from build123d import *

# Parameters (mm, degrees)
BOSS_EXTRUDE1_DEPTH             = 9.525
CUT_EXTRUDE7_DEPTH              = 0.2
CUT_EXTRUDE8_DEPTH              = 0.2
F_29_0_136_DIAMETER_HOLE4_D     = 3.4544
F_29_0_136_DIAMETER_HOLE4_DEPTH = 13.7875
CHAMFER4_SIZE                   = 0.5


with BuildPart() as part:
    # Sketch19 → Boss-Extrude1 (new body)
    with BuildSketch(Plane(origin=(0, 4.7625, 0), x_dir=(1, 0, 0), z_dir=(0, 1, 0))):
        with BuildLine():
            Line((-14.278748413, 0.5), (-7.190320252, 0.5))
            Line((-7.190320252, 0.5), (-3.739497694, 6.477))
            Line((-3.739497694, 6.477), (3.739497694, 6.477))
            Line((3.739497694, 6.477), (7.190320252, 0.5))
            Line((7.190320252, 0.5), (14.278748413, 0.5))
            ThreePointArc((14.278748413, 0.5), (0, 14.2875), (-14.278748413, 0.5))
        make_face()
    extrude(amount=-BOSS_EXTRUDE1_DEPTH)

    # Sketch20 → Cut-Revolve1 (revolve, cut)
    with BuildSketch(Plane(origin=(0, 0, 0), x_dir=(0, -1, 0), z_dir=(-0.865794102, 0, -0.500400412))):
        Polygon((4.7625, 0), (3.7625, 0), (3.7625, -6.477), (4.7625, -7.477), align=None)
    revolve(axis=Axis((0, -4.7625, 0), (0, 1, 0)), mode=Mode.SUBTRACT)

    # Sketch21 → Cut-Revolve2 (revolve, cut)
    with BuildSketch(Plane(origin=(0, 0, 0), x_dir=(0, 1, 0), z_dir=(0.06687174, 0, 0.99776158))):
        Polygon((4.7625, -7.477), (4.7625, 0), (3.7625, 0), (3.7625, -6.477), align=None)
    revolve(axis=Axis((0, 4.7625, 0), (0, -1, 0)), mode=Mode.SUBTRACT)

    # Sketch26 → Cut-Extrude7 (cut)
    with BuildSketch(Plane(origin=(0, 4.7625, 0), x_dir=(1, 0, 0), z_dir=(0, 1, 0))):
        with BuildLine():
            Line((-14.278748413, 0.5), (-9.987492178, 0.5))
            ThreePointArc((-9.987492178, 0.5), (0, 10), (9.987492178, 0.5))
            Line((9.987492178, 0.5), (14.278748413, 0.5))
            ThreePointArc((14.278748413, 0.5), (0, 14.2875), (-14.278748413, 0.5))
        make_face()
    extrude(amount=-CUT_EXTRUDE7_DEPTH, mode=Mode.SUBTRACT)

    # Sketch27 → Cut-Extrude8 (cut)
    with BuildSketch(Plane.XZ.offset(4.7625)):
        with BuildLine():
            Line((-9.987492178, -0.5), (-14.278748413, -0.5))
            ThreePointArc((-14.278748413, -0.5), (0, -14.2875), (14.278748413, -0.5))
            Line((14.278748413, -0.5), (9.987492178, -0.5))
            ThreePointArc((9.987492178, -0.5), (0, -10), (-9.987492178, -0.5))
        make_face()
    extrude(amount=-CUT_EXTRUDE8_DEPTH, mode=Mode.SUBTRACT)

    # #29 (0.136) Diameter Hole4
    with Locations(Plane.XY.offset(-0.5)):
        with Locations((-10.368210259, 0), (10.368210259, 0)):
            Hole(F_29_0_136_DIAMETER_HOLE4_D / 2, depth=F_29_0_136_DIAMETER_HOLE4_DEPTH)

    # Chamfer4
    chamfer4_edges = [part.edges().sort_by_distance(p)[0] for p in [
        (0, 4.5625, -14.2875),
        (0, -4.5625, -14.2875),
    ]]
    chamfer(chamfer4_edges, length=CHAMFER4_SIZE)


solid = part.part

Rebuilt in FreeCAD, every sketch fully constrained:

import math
import FreeCAD as App
import Part
import Sketcher
Q = App.Units.Quantity


def edges_at(feature, points):
    """Names of the edges that pass closest to the given points."""
    edges = feature.Shape.Edges
    near = lambda p: min(range(len(edges)), key=lambda i: edges[i].distToShape(Part.Vertex(*p))[0])
    return sorted({f"Edge{near(p) + 1}" for p in points})


def add_polygon(sketch, points):
    """Adds a closed chain of lines whose ends are joined by coincident constraints."""
    first, n = sketch.GeometryCount, len(points)
    for a, b in zip(points, points[1:] + points[:1]):
        sketch.addGeometry(Part.LineSegment(App.Vector(*a, 0), App.Vector(*b, 0)), False)
    for i in range(n):
        sketch.addConstraint(Sketcher.Constraint("Coincident", first + i, 2, first + (i + 1) % n, 1))

doc = App.newDocument("Part")
body = doc.addObject("PartDesign::Body", "Body")

sketch1 = doc.addObject("Sketcher::SketchObject", "Sketch")
body.addObject(sketch1)
sketch1.AttachmentSupport = (doc.XZ_Plane, [""])
sketch1.MapMode = "FlatFace"
sketch1.AttachmentOffset = App.Placement(App.Vector(0, 0, -4.7625), App.Rotation())
sketch1.addGeometry(Part.LineSegment(App.Vector(-14, 0, 0), App.Vector(-7, 0, 0)), False)
sketch1.addGeometry(Part.LineSegment(App.Vector(-7, 0, 0), App.Vector(-4, -6, 0)), False)
sketch1.addGeometry(Part.LineSegment(App.Vector(-4, -6, 0), App.Vector(4, -6, 0)), False)
sketch1.addGeometry(Part.LineSegment(App.Vector(4, -6, 0), App.Vector(7, 0, 0)), False)
sketch1.addGeometry(Part.LineSegment(App.Vector(7, 0, 0), App.Vector(14, 0, 0)), False)
sketch1.addGeometry(Part.ArcOfCircle(Part.Circle(App.Vector(0, 0, 0), App.Vector(0, 0, 1), 14), math.radians(-178), math.radians(-2)), False)
sketch1.addConstraint(Sketcher.Constraint("Coincident", 0, 2, 1, 1))
sketch1.addConstraint(Sketcher.Constraint("Coincident", 1, 2, 2, 1))
sketch1.addConstraint(Sketcher.Constraint("Coincident", 2, 2, 3, 1))
sketch1.addConstraint(Sketcher.Constraint("Coincident", 3, 2, 4, 1))
sketch1.addConstraint(Sketcher.Constraint("Coincident", 4, 2, 5, 2))
sketch1.addConstraint(Sketcher.Constraint("Coincident", 5, 1, 0, 1))
sketch1.addConstraint(Sketcher.Constraint("Horizontal", 0))
sketch1.addConstraint(Sketcher.Constraint("Horizontal", 2))
sketch1.addConstraint(Sketcher.Constraint("Horizontal", 4))
sketch1.addConstraint(Sketcher.Constraint("Coincident", 5, 3, -1, 1))
sketch1.addConstraint(Sketcher.Constraint("Symmetric", 0, 2, 3, 2, -2))
sketch1.addConstraint(Sketcher.Constraint("Equal", 1, 3))
sketch1.addConstraint(Sketcher.Constraint("Angle", 1, Q("-60 deg")))
sketch1.addConstraint(Sketcher.Constraint("DistanceY", 0, 2, -1, 1, Q("0.5 mm")))
sketch1.addConstraint(Sketcher.Constraint("Radius", 5, Q("14.2875 mm")))
sketch1.addConstraint(Sketcher.Constraint("DistanceY", 1, 2, -1, 1, Q("6.477 mm")))
sketch1.addConstraint(Sketcher.Constraint("DistanceX", 0, 1, 0, 2, Q("7.088428 mm")))
pad1 = doc.addObject("PartDesign::Pad", "Pad")
body.addObject(pad1)
pad1.Profile = sketch1
pad1.Length = 9.525

sketch2 = doc.addObject("Sketcher::SketchObject", "Sketch001")
body.addObject(sketch2)
sketch2.Placement = App.Placement(App.Vector(0, 0, 0), App.Rotation(App.Vector(0, -1, 0), App.Vector(-0.500400412, 0, 0.865794102), App.Vector(-0.865794102, 0, -0.500400412), "ZXY"))
add_polygon(sketch2, [(4.8, 0), (3.8, 0), (3.8, -6.5), (4.8, -7.5)])
sketch2.addConstraint(Sketcher.Constraint("Horizontal", 0))
sketch2.addConstraint(Sketcher.Constraint("Vertical", 1))
sketch2.addConstraint(Sketcher.Constraint("Vertical", 3))
sketch2.addConstraint(Sketcher.Constraint("PointOnObject", 0, 2, -1))
sketch2.addConstraint(Sketcher.Constraint("DistanceX", 0, 2, 0, 1, Q("1 mm")))
sketch2.addConstraint(Sketcher.Constraint("Angle", 2, Q("-45 deg")))
sketch2.addConstraint(Sketcher.Constraint("DistanceY", 1, 2, 1, 1, Q("6.477 mm")))
sketch2.addConstraint(Sketcher.Constraint("DistanceX", -1, 1, 0, 2, Q("3.7625 mm")))
groove = doc.addObject("PartDesign::Groove", "Groove")
body.addObject(groove)
groove.Profile = sketch2
groove.ReferenceAxis = (sketch2, ["H_Axis"])
groove.Angle = 360

sketch3 = doc.addObject("Sketcher::SketchObject", "Sketch002")
body.addObject(sketch3)
sketch3.Placement = App.Placement(App.Vector(0, 0, 0), App.Rotation(App.Vector(0, 1, 0), App.Vector(-0.99776158, 0, 0.06687174), App.Vector(0.06687174, 0, 0.99776158), "ZXY"))
add_polygon(sketch3, [(4.8, -7.5), (4.8, 0), (3.8, 0), (3.8, -6.5)])
sketch3.addConstraint(Sketcher.Constraint("Vertical", 0))
sketch3.addConstraint(Sketcher.Constraint("Horizontal", 1))
sketch3.addConstraint(Sketcher.Constraint("Vertical", 2))
sketch3.addConstraint(Sketcher.Constraint("PointOnObject", 0, 2, -1))
sketch3.addConstraint(Sketcher.Constraint("DistanceX", 1, 2, 1, 1, Q("1 mm")))
sketch3.addConstraint(Sketcher.Constraint("Angle", 3, Q("-45 deg")))
sketch3.addConstraint(Sketcher.Constraint("DistanceY", 0, 1, 0, 2, Q("7.477 mm")))
sketch3.addConstraint(Sketcher.Constraint("DistanceX", -1, 1, 0, 2, Q("4.7625 mm")))
groove2 = doc.addObject("PartDesign::Groove", "Groove001")
body.addObject(groove2)
groove2.Profile = sketch3
groove2.ReferenceAxis = (sketch3, ["H_Axis"])
groove2.Angle = 360

sketch4 = doc.addObject("Sketcher::SketchObject", "Sketch003")
body.addObject(sketch4)
sketch4.AttachmentSupport = (doc.XZ_Plane, [""])
sketch4.MapMode = "FlatFace"
sketch4.AttachmentOffset = App.Placement(App.Vector(0, 0, -4.7625), App.Rotation())
sketch4.addGeometry(Part.LineSegment(App.Vector(-14.3, -0.5, 0), App.Vector(-10, -0.5, 0)), False)
sketch4.addGeometry(Part.ArcOfCircle(Part.Circle(App.Vector(0, 0, 0), App.Vector(0, 0, 1), 10), math.radians(-177), math.radians(-3)), False)
sketch4.addGeometry(Part.LineSegment(App.Vector(10, -0.5, 0), App.Vector(14.3, -0.5, 0)), False)
sketch4.addGeometry(Part.ArcOfCircle(Part.Circle(App.Vector(0, 0, 0), App.Vector(0, 0, 1), 14.3), math.radians(-178), math.radians(-2)), False)
sketch4.addConstraint(Sketcher.Constraint("Coincident", 0, 2, 1, 1))
sketch4.addConstraint(Sketcher.Constraint("Coincident", 1, 2, 2, 1))
sketch4.addConstraint(Sketcher.Constraint("Coincident", 2, 2, 3, 2))
sketch4.addConstraint(Sketcher.Constraint("Coincident", 3, 1, 0, 1))
sketch4.addConstraint(Sketcher.Constraint("Horizontal", 0))
sketch4.addConstraint(Sketcher.Constraint("Horizontal", 2))
sketch4.addConstraint(Sketcher.Constraint("Coincident", 1, 3, -1, 1))
sketch4.addConstraint(Sketcher.Constraint("Coincident", 3, 3, -1, 1))
sketch4.addConstraint(Sketcher.Constraint("Horizontal", 0, 2, 1, 2))
sketch4.addConstraint(Sketcher.Constraint("Radius", 1, Q("10 mm")))
sketch4.addConstraint(Sketcher.Constraint("DistanceY", 0, 2, -1, 1, Q("0.5 mm")))
sketch4.addConstraint(Sketcher.Constraint("Radius", 3, Q("14.2875 mm")))
pocket1 = doc.addObject("PartDesign::Pocket", "Pocket")
body.addObject(pocket1)
pocket1.Profile = sketch4
pocket1.Length = 0.2
pocket1.Reversed = True

sketch5 = doc.addObject("Sketcher::SketchObject", "Sketch004")
body.addObject(sketch5)
sketch5.AttachmentSupport = (doc.XZ_Plane, [""])
sketch5.MapMode = "FlatFace"
sketch5.AttachmentOffset = App.Placement(App.Vector(0, 0, 4.7625), App.Rotation())
sketch5.addGeometry(Part.LineSegment(App.Vector(-10, -0.5, 0), App.Vector(-14.3, -0.5, 0)), False)
sketch5.addGeometry(Part.ArcOfCircle(Part.Circle(App.Vector(0, 0, 0), App.Vector(0, 0, 1), 14.3), math.radians(-178), math.radians(-2)), False)
sketch5.addGeometry(Part.LineSegment(App.Vector(14.3, -0.5, 0), App.Vector(10, -0.5, 0)), False)
sketch5.addGeometry(Part.ArcOfCircle(Part.Circle(App.Vector(0, 0, 0), App.Vector(0, 0, 1), 10), math.radians(-177), math.radians(-3)), False)
sketch5.addConstraint(Sketcher.Constraint("Coincident", 0, 2, 1, 1))
sketch5.addConstraint(Sketcher.Constraint("Coincident", 1, 2, 2, 1))
sketch5.addConstraint(Sketcher.Constraint("Coincident", 2, 2, 3, 2))
sketch5.addConstraint(Sketcher.Constraint("Coincident", 3, 1, 0, 1))
sketch5.addConstraint(Sketcher.Constraint("Horizontal", 0))
sketch5.addConstraint(Sketcher.Constraint("Horizontal", 2))
sketch5.addConstraint(Sketcher.Constraint("Coincident", 1, 3, -1, 1))
sketch5.addConstraint(Sketcher.Constraint("Coincident", 3, 3, -1, 1))
sketch5.addConstraint(Sketcher.Constraint("Horizontal", 0, 2, 1, 2))
sketch5.addConstraint(Sketcher.Constraint("Radius", 3, Q("10 mm")))
sketch5.addConstraint(Sketcher.Constraint("DistanceY", 0, 2, -1, 1, Q("0.5 mm")))
sketch5.addConstraint(Sketcher.Constraint("Radius", 1, Q("14.2875 mm")))
pocket2 = doc.addObject("PartDesign::Pocket", "Pocket001")
body.addObject(pocket2)
pocket2.Profile = sketch5
pocket2.Length = 0.2

sketch6 = doc.addObject("Sketcher::SketchObject", "Sketch005")
body.addObject(sketch6)
sketch6.AttachmentSupport = (doc.XY_Plane, [""])
sketch6.MapMode = "FlatFace"
sketch6.AttachmentOffset = App.Placement(App.Vector(0, 0, -0.5), App.Rotation())
sketch6.addGeometry(Part.Circle(App.Vector(-10.4, 0, 0), App.Vector(0, 0, 1), 1.7), False)
sketch6.addGeometry(Part.Circle(App.Vector(10.4, 0, 0), App.Vector(0, 0, 1), 1.7), False)
sketch6.addConstraint(Sketcher.Constraint("Equal", 0, 1))
sketch6.addConstraint(Sketcher.Constraint("Symmetric", 0, 3, 1, 3, -1, 1))
sketch6.addConstraint(Sketcher.Constraint("PointOnObject", 0, 3, -1))
sketch6.addConstraint(Sketcher.Constraint("Diameter", 0, Q("3.4544 mm")))
sketch6.addConstraint(Sketcher.Constraint("DistanceX", 0, 3, -1, 1, Q("10.36821 mm")))
doc.recompute()
hole = doc.addObject("PartDesign::Hole", "Hole")
body.addObject(hole)
hole.Profile = sketch6
hole.ThreadType = "None"
hole.Diameter = 3.4544
hole.DepthType = "Dimension"
hole.Depth = 13.7875
hole.DrillPoint = "Flat"
doc.recompute()

chamfer = doc.addObject("PartDesign::Chamfer", "Chamfer")
body.addObject(chamfer)
chamfer.Base = (hole, edges_at(hole, [(0, 4.562, -14.287), (0, -4.562, -14.287)]))
chamfer.Size = 0.5

doc.recompute()
